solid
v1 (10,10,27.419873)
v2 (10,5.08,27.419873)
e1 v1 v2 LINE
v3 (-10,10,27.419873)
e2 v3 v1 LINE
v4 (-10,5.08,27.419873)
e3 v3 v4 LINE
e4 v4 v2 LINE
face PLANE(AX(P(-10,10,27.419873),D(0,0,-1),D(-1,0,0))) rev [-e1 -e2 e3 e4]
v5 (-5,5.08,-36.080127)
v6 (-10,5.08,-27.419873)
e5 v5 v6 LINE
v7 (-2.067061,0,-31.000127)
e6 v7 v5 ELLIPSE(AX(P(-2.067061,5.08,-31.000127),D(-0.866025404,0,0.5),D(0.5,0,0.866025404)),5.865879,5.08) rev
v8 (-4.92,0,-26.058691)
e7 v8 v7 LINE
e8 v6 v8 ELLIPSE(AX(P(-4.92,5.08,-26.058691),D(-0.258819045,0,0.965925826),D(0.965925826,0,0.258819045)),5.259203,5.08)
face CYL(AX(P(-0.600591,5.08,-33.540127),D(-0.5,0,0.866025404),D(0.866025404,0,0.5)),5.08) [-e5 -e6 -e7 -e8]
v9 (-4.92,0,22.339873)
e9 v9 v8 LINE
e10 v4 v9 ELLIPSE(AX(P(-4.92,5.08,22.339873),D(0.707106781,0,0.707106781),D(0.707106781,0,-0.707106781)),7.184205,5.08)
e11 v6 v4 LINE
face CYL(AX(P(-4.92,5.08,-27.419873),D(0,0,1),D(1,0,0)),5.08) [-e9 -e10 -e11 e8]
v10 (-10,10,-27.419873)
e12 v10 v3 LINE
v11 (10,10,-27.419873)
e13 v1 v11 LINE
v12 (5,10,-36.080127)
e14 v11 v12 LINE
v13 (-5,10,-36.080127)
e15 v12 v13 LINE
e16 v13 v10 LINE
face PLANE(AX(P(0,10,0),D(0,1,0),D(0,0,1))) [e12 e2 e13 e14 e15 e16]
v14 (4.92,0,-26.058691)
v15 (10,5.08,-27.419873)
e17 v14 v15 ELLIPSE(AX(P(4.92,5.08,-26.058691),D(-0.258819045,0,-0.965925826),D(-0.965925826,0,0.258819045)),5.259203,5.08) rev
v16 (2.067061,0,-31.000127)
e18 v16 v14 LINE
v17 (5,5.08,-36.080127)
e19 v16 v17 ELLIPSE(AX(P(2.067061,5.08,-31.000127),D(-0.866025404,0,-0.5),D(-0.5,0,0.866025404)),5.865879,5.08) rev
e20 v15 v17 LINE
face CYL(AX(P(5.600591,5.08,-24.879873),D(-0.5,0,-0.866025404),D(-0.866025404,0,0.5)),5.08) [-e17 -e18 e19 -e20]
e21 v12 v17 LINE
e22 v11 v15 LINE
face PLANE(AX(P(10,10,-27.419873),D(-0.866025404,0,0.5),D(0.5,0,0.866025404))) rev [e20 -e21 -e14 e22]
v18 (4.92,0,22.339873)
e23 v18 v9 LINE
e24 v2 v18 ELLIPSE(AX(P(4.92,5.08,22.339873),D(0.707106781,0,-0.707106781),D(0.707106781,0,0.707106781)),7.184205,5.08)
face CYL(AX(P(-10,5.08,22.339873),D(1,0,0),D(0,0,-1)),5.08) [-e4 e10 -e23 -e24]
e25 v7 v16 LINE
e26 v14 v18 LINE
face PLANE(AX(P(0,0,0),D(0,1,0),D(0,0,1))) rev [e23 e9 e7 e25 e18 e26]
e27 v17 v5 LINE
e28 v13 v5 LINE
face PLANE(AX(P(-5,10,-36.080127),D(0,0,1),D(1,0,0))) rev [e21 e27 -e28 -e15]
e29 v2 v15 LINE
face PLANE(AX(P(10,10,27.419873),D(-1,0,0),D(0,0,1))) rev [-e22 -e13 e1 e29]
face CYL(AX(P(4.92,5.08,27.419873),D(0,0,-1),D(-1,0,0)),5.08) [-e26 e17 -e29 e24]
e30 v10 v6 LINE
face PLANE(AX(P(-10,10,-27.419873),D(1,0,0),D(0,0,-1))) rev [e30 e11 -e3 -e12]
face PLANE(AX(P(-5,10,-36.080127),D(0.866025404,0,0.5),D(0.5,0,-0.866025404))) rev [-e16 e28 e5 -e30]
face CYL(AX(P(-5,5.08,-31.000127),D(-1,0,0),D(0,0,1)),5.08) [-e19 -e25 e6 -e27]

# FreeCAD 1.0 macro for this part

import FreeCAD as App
import Part
import Sketcher

V = App.Vector
Q = App.Units.Quantity


def edges_at(feature, points):
    """Names of the edges that pass closest to the given points."""
    edges = feature.Shape.Edges
    near = lambda p: min(range(len(edges)), key=lambda i: edges[i].distToShape(Part.Vertex(*p))[0])
    return sorted({f"Edge{near(p) + 1}" for p in points})

doc = App.newDocument("Part")
params = doc.addObject("Spreadsheet::Sheet", "Params")
for row, (alias, value) in enumerate([
    ("sketch1_width", "10 mm"),
    ("sketch1_width2", "20 mm"),
    ("pad1_length", "10 mm"),
    ("fillet_radius", "5.08 mm"),
], start=1):
    params.set(f"A{row}", alias)
    params.set(f"B{row}", "=" + value)
    params.setAlias(f"B{row}", alias)

body = doc.addObject("PartDesign::Body", "Body")

sketch1 = body.newObject("Sketcher::SketchObject", "Sketch")
sketch1.AttachmentSupport = (doc.getObject("XZ_Plane"), [""])
sketch1.MapMode = "FlatFace"
sketch1.addGeometry(Part.LineSegment(V(10, 27.419873, 0), V(10, -27.419873, 0)), False)
sketch1.addGeometry(Part.LineSegment(V(10, -27.419873, 0), V(5, -36.080127, 0)), False)
sketch1.addGeometry(Part.LineSegment(V(5, -36.080127, 0), V(-5, -36.080127, 0)), False)
sketch1.addGeometry(Part.LineSegment(V(-5, -36.080127, 0), V(-10, -27.419873, 0)), False)
sketch1.addGeometry(Part.LineSegment(V(-10, -27.419873, 0), V(-10, 27.419873, 0)), False)
sketch1.addGeometry(Part.LineSegment(V(-10, 27.419873, 0), V(10, 27.419873, 0)), False)
sketch1.addConstraint(Sketcher.Constraint("Coincident", 0, 2, 1, 1))
sketch1.addConstraint(Sketcher.Constraint("Coincident", 1, 2, 2, 1))
sketch1.addConstraint(Sketcher.Constraint("Coincident", 2, 2, 3, 1))
sketch1.addConstraint(Sketcher.Constraint("Coincident", 3, 2, 4, 1))
sketch1.addConstraint(Sketcher.Constraint("Coincident", 4, 2, 5, 1))
sketch1.addConstraint(Sketcher.Constraint("Coincident", 5, 2, 0, 1))
sketch1.addConstraint(Sketcher.Constraint("Vertical", 0))
sketch1.addConstraint(Sketcher.Constraint("Horizontal", 2))
sketch1.addConstraint(Sketcher.Constraint("Vertical", 4))
sketch1.addConstraint(Sketcher.Constraint("Horizontal", 5))
sketch1.addConstraint(Sketcher.Constraint("Symmetric", 0, 2, 4, 2, -1, 1))
sketch1.addConstraint(Sketcher.Constraint("Horizontal", 0, 2, 3, 2))
sketch1.addConstraint(Sketcher.Constraint("Equal", 1, 3))
sketch1.addConstraint(Sketcher.Constraint("DistanceX", 2, 2, 2, 1, 10.0))
sketch1.addConstraint(Sketcher.Constraint("DistanceX", 5, 1, 5, 2, 20.0))
sketch1.addConstraint(Sketcher.Constraint("Angle", 1, Q("-120 deg")))
sketch1.addConstraint(Sketcher.Constraint("DistanceY", 2, 2, 4, 2, 63.5))
sketch1.setExpression("Constraints[13]", "Params.sketch1_width")
sketch1.setExpression("Constraints[14]", "Params.sketch1_width2")
pad1 = body.newObject("PartDesign::Pad", "Pad")
pad1.Profile = sketch1
pad1.setExpression("Length", "Params.pad1_length")
pad1.Reversed = True
doc.recompute()

fillet = body.newObject("PartDesign::Fillet", "Fillet")
fillet.Base = (pad1, edges_at(pad1, [
    (-10, 0, 0),
    (-7.5, 0, -31.75),
    (0, 0, -36.08),
    (7.5, 0, -31.75),
    (10, 0, 0),
    (0, 0, 27.42),
]))
fillet.setExpression("Radius", "Params.fillet_radius")

doc.recompute()
